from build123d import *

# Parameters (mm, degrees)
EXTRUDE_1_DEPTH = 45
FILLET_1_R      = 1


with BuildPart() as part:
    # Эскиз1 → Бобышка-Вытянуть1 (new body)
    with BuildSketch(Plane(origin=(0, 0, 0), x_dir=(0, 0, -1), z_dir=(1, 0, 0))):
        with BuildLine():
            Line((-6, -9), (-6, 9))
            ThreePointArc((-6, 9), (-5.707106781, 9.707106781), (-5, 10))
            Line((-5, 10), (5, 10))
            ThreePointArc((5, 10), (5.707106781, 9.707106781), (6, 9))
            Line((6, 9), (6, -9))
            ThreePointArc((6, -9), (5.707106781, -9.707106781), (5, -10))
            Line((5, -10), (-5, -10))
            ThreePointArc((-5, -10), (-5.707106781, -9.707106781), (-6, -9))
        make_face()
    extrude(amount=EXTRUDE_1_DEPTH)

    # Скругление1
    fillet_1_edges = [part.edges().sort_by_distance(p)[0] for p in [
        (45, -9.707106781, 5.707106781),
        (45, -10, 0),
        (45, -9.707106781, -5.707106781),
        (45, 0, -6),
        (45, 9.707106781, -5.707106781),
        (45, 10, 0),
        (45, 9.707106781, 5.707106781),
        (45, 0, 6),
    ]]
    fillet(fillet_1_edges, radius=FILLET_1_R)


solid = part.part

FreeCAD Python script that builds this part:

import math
import FreeCAD as App
import Part
import Sketcher

V = App.Vector
Q = App.Units.Quantity


def edges_at(feature, points):
    """Names of the edges that pass closest to the given points."""
    edges = feature.Shape.Edges
    near = lambda p: min(range(len(edges)), key=lambda i: edges[i].distToShape(Part.Vertex(*p))[0])
    return sorted({f"Edge{near(p) + 1}" for p in points})

doc = App.newDocument("Part")
body = doc.addObject("PartDesign::Body", "Body")

sketch1 = body.newObject("Sketcher::SketchObject", "Sketch")
sketch1.AttachmentSupport = (doc.getObject("YZ_Plane"), [""])
sketch1.MapMode = "FlatFace"
sketch1.addGeometry(Part.LineSegment(V(9, 6, 0), V(-9, 6, 0)), False)
sketch1.addGeometry(Part.ArcOfCircle(Part.Circle(V(-9, 5, 0), V(0, 0, 1), 1), math.radians(90), math.radians(180)), False)
sketch1.addGeometry(Part.LineSegment(V(-10, 5, 0), V(-10, -5, 0)), False)
sketch1.addGeometry(Part.ArcOfCircle(Part.Circle(V(-9, -5, 0), V(0, 0, 1), 1), math.radians(-180), math.radians(-90)), False)
sketch1.addGeometry(Part.LineSegment(V(-9, -6, 0), V(9, -6, 0)), False)
sketch1.addGeometry(Part.ArcOfCircle(Part.Circle(V(9, -5, 0), V(0, 0, 1), 1), math.radians(-90), math.radians(0)), False)
sketch1.addGeometry(Part.LineSegment(V(10, -5, 0), V(10, 5, 0)), False)
sketch1.addGeometry(Part.ArcOfCircle(Part.Circle(V(9, 5, 0), V(0, 0, 1), 1), math.radians(0), math.radians(90)), False)
sketch1.addConstraint(Sketcher.Constraint("Tangent", 0, 2, 1, 1))
sketch1.addConstraint(Sketcher.Constraint("Tangent", 1, 2, 2, 1))
sketch1.addConstraint(Sketcher.Constraint("Tangent", 2, 2, 3, 1))
sketch1.addConstraint(Sketcher.Constraint("Tangent", 3, 2, 4, 1))
sketch1.addConstraint(Sketcher.Constraint("Tangent", 4, 2, 5, 1))
sketch1.addConstraint(Sketcher.Constraint("Tangent", 5, 2, 6, 1))
sketch1.addConstraint(Sketcher.Constraint("Tangent", 6, 2, 7, 1))
sketch1.addConstraint(Sketcher.Constraint("Tangent", 7, 2, 0, 1))
sketch1.addConstraint(Sketcher.Constraint("Horizontal", 0))
sketch1.addConstraint(Sketcher.Constraint("Vertical", 2))
sketch1.addConstraint(Sketcher.Constraint("Horizontal", 4))
sketch1.addConstraint(Sketcher.Constraint("Vertical", 6))
sketch1.addConstraint(Sketcher.Constraint("Equal", 1, 3))
sketch1.addConstraint(Sketcher.Constraint("Equal", 3, 5))
sketch1.addConstraint(Sketcher.Constraint("Equal", 5, 7))
sketch1.addConstraint(Sketcher.Constraint("Symmetric", 1, 3, 5, 3, -1, 1))
sketch1.addConstraint(Sketcher.Constraint("Radius", 1, Q("1 mm")))
sketch1.addConstraint(Sketcher.Constraint("DistanceX", 0, 2, 0, 1, Q("18 mm")))
sketch1.addConstraint(Sketcher.Constraint("DistanceY", 2, 2, 2, 1, Q("10 mm")))
pad1 = body.newObject("PartDesign::Pad", "Pad")
pad1.Profile = sketch1
pad1.Length = 45
doc.recompute()

fillet = body.newObject("PartDesign::Fillet", "Fillet")
fillet.Base = (pad1, edges_at(pad1, [
    (45, -9.707, 5.707),
    (45, -10, 0),
    (45, -9.707, -5.707),
    (45, 0, -6),
    (45, 9.707, -5.707),
    (45, 10, 0),
    (45, 9.707, 5.707),
    (45, 0, 6),
]))
fillet.Radius = 1

doc.recompute()
